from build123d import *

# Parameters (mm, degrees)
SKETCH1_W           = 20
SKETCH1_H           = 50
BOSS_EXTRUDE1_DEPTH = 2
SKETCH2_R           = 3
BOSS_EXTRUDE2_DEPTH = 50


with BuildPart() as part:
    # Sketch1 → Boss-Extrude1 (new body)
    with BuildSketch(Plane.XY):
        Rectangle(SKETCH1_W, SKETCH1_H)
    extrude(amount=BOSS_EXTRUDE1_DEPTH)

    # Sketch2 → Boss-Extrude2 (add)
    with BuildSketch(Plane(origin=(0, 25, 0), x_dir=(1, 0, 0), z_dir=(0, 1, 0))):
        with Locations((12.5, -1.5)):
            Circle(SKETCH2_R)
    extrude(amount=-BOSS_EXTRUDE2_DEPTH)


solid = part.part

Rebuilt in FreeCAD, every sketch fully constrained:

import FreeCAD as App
import Part
import Sketcher

V = App.Vector
Q = App.Units.Quantity

doc = App.newDocument("Part")
body = doc.addObject("PartDesign::Body", "Body")

# Sketch on XY plane
sketch1 = body.newObject("Sketcher::SketchObject", "Sketch")
sketch1.AttachmentSupport = (doc.getObject("XY_Plane"), [""])
sketch1.MapMode = "FlatFace"
sketch1.addGeometry(Part.LineSegment(V(-10, 25, 0), V(-10, -25, 0)), False)
sketch1.addGeometry(Part.LineSegment(V(-10, -25, 0), V(10, -25, 0)), False)
sketch1.addGeometry(Part.LineSegment(V(10, -25, 0), V(10, 25, 0)), False)
sketch1.addGeometry(Part.LineSegment(V(10, 25, 0), V(-10, 25, 0)), False)
sketch1.addConstraint(Sketcher.Constraint("Coincident", 0, 2, 1, 1))
sketch1.addConstraint(Sketcher.Constraint("Coincident", 1, 2, 2, 1))
sketch1.addConstraint(Sketcher.Constraint("Coincident", 2, 2, 3, 1))
sketch1.addConstraint(Sketcher.Constraint("Coincident", 3, 2, 0, 1))
sketch1.addConstraint(Sketcher.Constraint("Vertical", 0))
sketch1.addConstraint(Sketcher.Constraint("Horizontal", 1))
sketch1.addConstraint(Sketcher.Constraint("Vertical", 2))
sketch1.addConstraint(Sketcher.Constraint("Horizontal", 3))
sketch1.addConstraint(Sketcher.Constraint("Symmetric", 0, 2, 2, 2, -1, 1))
sketch1.addConstraint(Sketcher.Constraint("DistanceX", 1, 1, 1, 2, Q("20 mm")))
sketch1.addConstraint(Sketcher.Constraint("DistanceY", 0, 2, 0, 1, Q("50 mm")))
pad1 = body.newObject("PartDesign::Pad", "Pad")
pad1.Profile = sketch1
pad1.Length = 2

# Sketch on XZ plane
sketch2 = body.newObject("Sketcher::SketchObject", "Sketch001")
sketch2.AttachmentSupport = (doc.getObject("XZ_Plane"), [""])
sketch2.MapMode = "FlatFace"
sketch2.AttachmentOffset = App.Placement(V(0, 0, -25), App.Rotation())
sketch2.addGeometry(Part.Circle(V(12.5, 1.5, 0), V(0, 0, 1), 3), False)
sketch2.addConstraint(Sketcher.Constraint("Diameter", 0, Q("6 mm")))
sketch2.addConstraint(Sketcher.Constraint("DistanceX", -1, 1, 0, 3, Q("12.5 mm")))
sketch2.addConstraint(Sketcher.Constraint("DistanceY", -1, 1, 0, 3, Q("1.5 mm")))
pad2 = body.newObject("PartDesign::Pad", "Pad001")
pad2.Profile = sketch2
pad2.Length = 50

doc.recompute()
